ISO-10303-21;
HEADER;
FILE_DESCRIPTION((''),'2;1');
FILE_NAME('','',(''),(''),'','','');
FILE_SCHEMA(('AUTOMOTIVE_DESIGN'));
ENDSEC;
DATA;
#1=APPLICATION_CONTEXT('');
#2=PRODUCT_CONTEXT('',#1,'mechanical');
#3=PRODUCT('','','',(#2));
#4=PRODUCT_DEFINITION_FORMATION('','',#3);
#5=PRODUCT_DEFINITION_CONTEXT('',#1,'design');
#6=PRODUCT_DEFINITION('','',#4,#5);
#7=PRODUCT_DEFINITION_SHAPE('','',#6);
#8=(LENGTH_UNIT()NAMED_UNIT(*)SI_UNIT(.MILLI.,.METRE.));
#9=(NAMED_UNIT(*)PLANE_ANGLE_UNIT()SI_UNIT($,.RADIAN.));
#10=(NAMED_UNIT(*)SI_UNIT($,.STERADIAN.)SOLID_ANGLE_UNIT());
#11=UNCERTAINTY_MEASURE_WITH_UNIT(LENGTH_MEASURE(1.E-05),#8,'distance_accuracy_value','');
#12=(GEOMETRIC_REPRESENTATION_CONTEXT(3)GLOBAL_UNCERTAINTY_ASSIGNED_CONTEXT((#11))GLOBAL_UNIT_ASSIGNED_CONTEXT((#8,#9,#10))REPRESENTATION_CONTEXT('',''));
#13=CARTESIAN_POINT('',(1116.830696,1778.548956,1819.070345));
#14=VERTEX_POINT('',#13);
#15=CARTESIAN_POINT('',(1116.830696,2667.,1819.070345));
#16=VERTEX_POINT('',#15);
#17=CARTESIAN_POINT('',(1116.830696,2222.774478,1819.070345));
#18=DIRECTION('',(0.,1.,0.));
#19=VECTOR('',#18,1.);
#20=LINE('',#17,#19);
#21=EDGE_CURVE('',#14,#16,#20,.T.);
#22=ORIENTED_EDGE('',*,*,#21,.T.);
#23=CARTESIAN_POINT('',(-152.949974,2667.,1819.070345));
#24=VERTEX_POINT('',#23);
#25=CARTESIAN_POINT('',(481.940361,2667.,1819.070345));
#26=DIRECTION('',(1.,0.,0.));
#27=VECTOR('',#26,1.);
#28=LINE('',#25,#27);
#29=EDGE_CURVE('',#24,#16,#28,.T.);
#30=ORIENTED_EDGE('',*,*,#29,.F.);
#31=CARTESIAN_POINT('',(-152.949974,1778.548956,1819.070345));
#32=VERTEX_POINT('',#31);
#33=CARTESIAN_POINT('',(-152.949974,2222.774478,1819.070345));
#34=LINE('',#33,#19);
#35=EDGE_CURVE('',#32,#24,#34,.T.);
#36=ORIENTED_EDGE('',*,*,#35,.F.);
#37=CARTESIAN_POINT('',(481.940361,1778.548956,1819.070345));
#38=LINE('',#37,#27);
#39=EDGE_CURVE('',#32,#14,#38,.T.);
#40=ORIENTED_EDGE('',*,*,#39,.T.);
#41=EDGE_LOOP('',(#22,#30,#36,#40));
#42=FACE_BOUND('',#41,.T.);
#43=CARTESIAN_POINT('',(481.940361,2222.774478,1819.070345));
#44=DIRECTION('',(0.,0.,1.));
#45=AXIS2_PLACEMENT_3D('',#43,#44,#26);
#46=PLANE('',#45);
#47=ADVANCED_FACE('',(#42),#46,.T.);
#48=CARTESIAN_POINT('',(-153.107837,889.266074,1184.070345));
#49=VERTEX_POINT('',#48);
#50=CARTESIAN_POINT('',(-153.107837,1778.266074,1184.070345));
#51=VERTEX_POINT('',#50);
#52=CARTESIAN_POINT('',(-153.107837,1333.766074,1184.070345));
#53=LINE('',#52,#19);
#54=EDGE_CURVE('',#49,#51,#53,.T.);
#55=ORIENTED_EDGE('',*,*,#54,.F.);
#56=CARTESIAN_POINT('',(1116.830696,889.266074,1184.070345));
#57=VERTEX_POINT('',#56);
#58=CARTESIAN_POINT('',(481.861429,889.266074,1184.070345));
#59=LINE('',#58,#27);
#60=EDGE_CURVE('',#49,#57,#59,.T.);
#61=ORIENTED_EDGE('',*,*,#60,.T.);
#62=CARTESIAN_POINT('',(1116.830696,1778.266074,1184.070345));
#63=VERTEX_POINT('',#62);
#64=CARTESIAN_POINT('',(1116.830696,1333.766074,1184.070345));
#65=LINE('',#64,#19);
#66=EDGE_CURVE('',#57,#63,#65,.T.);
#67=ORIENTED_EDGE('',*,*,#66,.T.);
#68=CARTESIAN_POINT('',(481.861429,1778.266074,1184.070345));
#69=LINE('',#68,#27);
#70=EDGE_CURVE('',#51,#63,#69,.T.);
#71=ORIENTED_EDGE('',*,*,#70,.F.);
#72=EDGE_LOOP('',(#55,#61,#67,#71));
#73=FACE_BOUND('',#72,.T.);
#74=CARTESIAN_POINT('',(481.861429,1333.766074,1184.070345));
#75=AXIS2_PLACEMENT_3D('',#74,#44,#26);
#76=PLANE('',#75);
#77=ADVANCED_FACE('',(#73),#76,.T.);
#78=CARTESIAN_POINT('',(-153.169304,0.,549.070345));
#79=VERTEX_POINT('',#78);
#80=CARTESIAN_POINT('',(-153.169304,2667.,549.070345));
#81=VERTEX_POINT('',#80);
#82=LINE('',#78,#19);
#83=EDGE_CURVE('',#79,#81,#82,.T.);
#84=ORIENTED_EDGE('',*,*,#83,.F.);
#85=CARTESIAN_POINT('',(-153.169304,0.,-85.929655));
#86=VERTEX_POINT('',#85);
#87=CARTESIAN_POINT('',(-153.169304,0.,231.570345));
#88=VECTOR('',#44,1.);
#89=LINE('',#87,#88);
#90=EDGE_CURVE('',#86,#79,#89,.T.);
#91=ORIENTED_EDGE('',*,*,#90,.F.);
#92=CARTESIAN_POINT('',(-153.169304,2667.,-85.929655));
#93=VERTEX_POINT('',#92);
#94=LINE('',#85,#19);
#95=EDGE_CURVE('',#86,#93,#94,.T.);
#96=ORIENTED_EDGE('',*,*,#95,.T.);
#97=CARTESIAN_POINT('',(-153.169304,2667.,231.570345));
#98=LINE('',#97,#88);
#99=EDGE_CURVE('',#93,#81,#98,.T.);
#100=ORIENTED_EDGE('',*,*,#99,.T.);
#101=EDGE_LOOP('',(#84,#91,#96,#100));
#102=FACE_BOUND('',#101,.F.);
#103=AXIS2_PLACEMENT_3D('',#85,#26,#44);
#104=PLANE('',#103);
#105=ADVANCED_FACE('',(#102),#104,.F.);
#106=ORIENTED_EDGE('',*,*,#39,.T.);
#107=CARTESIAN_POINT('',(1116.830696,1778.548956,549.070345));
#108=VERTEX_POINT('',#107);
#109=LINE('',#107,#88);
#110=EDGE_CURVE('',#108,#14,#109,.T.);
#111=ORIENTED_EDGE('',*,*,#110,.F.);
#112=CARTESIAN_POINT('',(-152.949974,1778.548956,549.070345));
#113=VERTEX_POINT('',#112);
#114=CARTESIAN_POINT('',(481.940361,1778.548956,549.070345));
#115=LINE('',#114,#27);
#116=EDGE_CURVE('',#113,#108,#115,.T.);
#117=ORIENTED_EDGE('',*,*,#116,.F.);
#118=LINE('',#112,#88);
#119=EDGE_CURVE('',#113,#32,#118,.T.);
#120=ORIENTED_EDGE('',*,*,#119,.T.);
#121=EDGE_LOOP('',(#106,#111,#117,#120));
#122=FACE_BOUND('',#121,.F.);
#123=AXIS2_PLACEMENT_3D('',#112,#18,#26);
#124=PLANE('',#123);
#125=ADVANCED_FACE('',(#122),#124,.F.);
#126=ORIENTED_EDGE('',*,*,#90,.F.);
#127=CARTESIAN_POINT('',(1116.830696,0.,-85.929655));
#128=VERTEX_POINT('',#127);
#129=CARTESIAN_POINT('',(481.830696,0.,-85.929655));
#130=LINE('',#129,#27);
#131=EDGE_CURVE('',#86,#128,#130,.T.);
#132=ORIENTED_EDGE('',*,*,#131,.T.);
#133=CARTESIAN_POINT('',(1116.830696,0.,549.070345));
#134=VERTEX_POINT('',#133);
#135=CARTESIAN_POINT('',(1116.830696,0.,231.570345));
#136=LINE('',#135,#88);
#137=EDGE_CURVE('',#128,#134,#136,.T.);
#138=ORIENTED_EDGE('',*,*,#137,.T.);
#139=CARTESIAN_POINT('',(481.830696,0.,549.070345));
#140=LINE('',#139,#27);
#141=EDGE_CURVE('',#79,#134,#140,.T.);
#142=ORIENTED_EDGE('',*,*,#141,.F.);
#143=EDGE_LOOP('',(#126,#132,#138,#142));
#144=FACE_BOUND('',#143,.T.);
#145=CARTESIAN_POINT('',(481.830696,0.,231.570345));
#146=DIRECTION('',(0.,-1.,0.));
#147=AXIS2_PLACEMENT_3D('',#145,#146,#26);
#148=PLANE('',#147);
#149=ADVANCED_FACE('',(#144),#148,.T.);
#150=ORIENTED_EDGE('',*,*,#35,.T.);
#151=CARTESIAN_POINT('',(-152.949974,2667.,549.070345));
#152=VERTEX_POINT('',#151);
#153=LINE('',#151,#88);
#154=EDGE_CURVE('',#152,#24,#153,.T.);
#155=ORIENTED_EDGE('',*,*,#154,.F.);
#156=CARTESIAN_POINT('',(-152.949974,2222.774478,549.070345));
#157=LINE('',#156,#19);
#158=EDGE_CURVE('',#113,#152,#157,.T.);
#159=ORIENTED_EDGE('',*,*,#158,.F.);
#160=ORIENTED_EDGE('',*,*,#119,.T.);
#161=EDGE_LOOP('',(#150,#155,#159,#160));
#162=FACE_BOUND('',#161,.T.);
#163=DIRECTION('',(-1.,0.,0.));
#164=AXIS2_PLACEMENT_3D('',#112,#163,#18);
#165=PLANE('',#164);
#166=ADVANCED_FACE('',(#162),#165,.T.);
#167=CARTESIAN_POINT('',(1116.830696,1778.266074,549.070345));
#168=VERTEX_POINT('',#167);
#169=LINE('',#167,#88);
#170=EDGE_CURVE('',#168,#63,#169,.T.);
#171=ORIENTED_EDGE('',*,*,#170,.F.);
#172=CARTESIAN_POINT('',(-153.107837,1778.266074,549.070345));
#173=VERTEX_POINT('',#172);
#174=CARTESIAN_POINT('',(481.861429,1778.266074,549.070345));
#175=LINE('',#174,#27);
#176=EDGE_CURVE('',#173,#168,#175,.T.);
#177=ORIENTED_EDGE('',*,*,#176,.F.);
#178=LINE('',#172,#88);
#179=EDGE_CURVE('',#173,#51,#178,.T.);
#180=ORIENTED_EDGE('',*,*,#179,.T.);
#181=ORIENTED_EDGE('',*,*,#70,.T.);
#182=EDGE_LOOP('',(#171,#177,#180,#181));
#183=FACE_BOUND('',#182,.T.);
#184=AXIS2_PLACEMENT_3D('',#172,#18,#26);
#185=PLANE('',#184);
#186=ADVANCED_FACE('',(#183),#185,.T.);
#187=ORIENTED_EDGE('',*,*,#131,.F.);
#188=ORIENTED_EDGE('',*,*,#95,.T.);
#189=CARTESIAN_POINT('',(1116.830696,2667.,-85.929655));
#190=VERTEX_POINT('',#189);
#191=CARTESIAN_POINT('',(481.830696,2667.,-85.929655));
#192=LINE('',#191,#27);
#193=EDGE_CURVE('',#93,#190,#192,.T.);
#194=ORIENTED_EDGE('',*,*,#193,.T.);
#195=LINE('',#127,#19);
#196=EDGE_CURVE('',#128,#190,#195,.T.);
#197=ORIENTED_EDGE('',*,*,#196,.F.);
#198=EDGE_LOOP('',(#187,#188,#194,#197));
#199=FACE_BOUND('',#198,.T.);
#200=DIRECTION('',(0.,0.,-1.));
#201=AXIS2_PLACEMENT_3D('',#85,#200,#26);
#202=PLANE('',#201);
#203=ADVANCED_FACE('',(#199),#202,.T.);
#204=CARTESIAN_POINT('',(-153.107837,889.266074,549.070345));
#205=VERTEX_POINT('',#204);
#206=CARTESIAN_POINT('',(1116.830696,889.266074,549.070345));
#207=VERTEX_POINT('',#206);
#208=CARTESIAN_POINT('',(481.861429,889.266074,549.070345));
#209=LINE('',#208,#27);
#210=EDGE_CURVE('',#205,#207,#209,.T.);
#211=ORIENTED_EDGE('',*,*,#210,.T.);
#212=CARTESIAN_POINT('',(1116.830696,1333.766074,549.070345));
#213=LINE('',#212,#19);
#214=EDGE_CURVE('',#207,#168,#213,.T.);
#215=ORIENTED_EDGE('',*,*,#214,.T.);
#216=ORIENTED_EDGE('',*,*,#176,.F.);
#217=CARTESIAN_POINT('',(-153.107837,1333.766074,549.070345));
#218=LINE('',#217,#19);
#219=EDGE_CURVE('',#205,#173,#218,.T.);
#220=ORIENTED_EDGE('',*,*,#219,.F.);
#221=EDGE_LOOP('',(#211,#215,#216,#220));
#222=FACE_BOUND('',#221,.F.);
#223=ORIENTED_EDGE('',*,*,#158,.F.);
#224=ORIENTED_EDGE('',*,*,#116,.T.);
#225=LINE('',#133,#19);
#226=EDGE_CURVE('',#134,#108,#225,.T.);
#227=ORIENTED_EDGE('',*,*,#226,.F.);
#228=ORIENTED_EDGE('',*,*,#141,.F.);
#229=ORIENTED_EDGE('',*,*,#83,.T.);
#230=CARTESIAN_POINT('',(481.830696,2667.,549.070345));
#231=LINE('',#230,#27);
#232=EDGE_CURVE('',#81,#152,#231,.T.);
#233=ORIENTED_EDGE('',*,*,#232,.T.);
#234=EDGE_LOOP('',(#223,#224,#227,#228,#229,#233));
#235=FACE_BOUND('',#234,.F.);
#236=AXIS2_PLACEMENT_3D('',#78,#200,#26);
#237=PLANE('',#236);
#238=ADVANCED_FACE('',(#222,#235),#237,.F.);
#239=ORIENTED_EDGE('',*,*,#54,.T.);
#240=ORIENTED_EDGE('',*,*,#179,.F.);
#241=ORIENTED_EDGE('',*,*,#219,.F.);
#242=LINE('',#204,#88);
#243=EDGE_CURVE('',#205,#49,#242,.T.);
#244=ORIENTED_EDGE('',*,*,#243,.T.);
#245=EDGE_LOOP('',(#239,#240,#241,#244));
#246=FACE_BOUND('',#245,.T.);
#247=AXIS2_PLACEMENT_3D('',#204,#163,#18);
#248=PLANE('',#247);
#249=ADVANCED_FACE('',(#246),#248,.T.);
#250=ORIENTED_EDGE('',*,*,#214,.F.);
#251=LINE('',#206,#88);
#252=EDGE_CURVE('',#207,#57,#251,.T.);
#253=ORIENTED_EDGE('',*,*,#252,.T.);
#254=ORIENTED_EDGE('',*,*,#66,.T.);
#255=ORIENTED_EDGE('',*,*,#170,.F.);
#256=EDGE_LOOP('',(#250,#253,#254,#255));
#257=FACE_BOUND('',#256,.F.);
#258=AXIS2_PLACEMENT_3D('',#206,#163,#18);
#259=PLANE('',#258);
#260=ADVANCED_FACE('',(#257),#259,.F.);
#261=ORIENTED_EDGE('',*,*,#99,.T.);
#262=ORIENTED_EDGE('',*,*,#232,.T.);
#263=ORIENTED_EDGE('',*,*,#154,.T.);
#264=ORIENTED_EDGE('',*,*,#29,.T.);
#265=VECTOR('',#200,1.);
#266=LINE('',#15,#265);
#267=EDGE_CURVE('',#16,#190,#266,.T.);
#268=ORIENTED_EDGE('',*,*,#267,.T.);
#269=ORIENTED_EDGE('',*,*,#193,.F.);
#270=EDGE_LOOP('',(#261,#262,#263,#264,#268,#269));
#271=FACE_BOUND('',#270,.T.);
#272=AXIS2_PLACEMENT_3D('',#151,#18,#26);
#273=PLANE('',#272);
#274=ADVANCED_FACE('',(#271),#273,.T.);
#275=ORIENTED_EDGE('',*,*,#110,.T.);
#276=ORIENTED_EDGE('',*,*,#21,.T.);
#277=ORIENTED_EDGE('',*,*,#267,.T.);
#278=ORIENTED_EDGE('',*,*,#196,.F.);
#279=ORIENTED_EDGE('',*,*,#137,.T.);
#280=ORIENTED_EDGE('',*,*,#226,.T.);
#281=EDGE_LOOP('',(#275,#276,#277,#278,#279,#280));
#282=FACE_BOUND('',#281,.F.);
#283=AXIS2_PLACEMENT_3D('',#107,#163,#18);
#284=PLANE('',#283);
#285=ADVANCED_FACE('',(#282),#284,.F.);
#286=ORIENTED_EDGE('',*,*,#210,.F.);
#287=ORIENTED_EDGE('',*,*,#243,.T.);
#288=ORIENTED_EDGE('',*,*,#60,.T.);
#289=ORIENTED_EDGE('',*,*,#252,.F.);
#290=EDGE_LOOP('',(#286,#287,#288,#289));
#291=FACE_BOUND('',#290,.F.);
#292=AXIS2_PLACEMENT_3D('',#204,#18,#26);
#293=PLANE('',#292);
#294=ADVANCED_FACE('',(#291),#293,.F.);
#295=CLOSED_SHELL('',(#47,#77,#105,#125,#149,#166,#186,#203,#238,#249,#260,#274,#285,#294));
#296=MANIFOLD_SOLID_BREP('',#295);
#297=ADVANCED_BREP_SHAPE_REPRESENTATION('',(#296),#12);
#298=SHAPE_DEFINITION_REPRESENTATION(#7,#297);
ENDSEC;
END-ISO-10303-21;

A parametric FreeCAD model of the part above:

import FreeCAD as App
import Part
import Sketcher
from FreeCAD import Vector
Q = App.Units.Quantity


def add_polygon(sketch, points):
    """Adds a closed chain of lines whose ends are joined by coincident constraints."""
    first, n = sketch.GeometryCount, len(points)
    for a, b in zip(points, points[1:] + points[:1]):
        sketch.addGeometry(Part.LineSegment(App.Vector(*a, 0), App.Vector(*b, 0)), False)
    for i in range(n):
        sketch.addConstraint(Sketcher.Constraint("Coincident", first + i, 2, first + (i + 1) % n, 1))

doc = App.newDocument("Part")
body = doc.addObject("PartDesign::Body", "Body")

# Sketch on XZ plane
sketch1 = body.newObject("Sketcher::SketchObject", "Sketch")
sketch1.AttachmentSupport = (doc.getObject("XZ_Plane"), [""])
sketch1.MapMode = "FlatFace"
add_polygon(sketch1, [(-153, 549), (-153, -86), (1117, -86), (1117, 549)])  # lines 0-3
sketch1.addConstraint([
    Sketcher.Constraint("Vertical", 0),
    Sketcher.Constraint("Horizontal", 1),
    Sketcher.Constraint("Vertical", 2),
    Sketcher.Constraint("Horizontal", 3),
    Sketcher.Constraint("DistanceX", 1, 1, 1, 2, Q("50 in")),
    Sketcher.Constraint("DistanceY", 0, 2, 0, 1, Q("25 in")),
    Sketcher.Constraint("DistanceX", 0, 2, -1, 1, Q("153.169304 mm")),
    Sketcher.Constraint("DistanceY", 0, 2, -1, 1, Q("85.929655 mm")),
])
pad1 = body.newObject("PartDesign::Pad", "Pad")
pad1.Profile = sketch1
pad1.Length = Q("105 in")
pad1.Reversed = True

# Sketch on XY plane
sketch2 = body.newObject("Sketcher::SketchObject", "Sketch001")
sketch2.AttachmentSupport = (doc.getObject("XY_Plane"), [""])
sketch2.MapMode = "FlatFace"
sketch2.AttachmentOffset = App.Placement(Vector(0, 0, 549.070345), App.Rotation())
add_polygon(sketch2, [(-153, 1778), (-153, 889), (1117, 889), (1117, 1778)])  # lines 0-3
sketch2.addConstraint([
    Sketcher.Constraint("Vertical", 0),
    Sketcher.Constraint("Horizontal", 1),
    Sketcher.Constraint("Vertical", 2),
    Sketcher.Constraint("Horizontal", 3),
    Sketcher.Constraint("DistanceY", 0, 2, 0, 1, Q("35 in")),
    Sketcher.Constraint("DistanceX", 1, 1, 1, 2, Q("1269.938533 mm")),
    Sketcher.Constraint("DistanceX", 0, 2, -1, 1, Q("153.107837 mm")),
    Sketcher.Constraint("DistanceY", -1, 1, 0, 2, Q("889.266074 mm")),
])
pad2 = body.newObject("PartDesign::Pad", "Pad001")
pad2.Profile = sketch2
pad2.Length = Q("25 in")

# Sketch on XY plane
sketch3 = body.newObject("Sketcher::SketchObject", "Sketch002")
sketch3.AttachmentSupport = (doc.getObject("XY_Plane"), [""])
sketch3.MapMode = "FlatFace"
sketch3.AttachmentOffset = App.Placement(Vector(0, 0, 549.070345), App.Rotation())
add_polygon(sketch3, [(-153, 2667), (-153, 1779), (1117, 1779), (1117, 2667)])  # lines 0-3
sketch3.addConstraint([
    Sketcher.Constraint("Vertical", 0),
    Sketcher.Constraint("Horizontal", 1),
    Sketcher.Constraint("Vertical", 2),
    Sketcher.Constraint("Horizontal", 3),
    Sketcher.Constraint("DistanceY", -1, 1, 2, 2, Q("105 in")),
    Sketcher.Constraint("DistanceX", 1, 1, 1, 2, Q("1269.78067 mm")),
    Sketcher.Constraint("DistanceY", 0, 2, 0, 1, Q("888.451044 mm")),
    Sketcher.Constraint("DistanceX", 0, 2, -1, 1, Q("152.949974 mm")),
])
pad3 = body.newObject("PartDesign::Pad", "Pad002")
pad3.Profile = sketch3
pad3.Length = Q("50 in")

doc.recompute()
